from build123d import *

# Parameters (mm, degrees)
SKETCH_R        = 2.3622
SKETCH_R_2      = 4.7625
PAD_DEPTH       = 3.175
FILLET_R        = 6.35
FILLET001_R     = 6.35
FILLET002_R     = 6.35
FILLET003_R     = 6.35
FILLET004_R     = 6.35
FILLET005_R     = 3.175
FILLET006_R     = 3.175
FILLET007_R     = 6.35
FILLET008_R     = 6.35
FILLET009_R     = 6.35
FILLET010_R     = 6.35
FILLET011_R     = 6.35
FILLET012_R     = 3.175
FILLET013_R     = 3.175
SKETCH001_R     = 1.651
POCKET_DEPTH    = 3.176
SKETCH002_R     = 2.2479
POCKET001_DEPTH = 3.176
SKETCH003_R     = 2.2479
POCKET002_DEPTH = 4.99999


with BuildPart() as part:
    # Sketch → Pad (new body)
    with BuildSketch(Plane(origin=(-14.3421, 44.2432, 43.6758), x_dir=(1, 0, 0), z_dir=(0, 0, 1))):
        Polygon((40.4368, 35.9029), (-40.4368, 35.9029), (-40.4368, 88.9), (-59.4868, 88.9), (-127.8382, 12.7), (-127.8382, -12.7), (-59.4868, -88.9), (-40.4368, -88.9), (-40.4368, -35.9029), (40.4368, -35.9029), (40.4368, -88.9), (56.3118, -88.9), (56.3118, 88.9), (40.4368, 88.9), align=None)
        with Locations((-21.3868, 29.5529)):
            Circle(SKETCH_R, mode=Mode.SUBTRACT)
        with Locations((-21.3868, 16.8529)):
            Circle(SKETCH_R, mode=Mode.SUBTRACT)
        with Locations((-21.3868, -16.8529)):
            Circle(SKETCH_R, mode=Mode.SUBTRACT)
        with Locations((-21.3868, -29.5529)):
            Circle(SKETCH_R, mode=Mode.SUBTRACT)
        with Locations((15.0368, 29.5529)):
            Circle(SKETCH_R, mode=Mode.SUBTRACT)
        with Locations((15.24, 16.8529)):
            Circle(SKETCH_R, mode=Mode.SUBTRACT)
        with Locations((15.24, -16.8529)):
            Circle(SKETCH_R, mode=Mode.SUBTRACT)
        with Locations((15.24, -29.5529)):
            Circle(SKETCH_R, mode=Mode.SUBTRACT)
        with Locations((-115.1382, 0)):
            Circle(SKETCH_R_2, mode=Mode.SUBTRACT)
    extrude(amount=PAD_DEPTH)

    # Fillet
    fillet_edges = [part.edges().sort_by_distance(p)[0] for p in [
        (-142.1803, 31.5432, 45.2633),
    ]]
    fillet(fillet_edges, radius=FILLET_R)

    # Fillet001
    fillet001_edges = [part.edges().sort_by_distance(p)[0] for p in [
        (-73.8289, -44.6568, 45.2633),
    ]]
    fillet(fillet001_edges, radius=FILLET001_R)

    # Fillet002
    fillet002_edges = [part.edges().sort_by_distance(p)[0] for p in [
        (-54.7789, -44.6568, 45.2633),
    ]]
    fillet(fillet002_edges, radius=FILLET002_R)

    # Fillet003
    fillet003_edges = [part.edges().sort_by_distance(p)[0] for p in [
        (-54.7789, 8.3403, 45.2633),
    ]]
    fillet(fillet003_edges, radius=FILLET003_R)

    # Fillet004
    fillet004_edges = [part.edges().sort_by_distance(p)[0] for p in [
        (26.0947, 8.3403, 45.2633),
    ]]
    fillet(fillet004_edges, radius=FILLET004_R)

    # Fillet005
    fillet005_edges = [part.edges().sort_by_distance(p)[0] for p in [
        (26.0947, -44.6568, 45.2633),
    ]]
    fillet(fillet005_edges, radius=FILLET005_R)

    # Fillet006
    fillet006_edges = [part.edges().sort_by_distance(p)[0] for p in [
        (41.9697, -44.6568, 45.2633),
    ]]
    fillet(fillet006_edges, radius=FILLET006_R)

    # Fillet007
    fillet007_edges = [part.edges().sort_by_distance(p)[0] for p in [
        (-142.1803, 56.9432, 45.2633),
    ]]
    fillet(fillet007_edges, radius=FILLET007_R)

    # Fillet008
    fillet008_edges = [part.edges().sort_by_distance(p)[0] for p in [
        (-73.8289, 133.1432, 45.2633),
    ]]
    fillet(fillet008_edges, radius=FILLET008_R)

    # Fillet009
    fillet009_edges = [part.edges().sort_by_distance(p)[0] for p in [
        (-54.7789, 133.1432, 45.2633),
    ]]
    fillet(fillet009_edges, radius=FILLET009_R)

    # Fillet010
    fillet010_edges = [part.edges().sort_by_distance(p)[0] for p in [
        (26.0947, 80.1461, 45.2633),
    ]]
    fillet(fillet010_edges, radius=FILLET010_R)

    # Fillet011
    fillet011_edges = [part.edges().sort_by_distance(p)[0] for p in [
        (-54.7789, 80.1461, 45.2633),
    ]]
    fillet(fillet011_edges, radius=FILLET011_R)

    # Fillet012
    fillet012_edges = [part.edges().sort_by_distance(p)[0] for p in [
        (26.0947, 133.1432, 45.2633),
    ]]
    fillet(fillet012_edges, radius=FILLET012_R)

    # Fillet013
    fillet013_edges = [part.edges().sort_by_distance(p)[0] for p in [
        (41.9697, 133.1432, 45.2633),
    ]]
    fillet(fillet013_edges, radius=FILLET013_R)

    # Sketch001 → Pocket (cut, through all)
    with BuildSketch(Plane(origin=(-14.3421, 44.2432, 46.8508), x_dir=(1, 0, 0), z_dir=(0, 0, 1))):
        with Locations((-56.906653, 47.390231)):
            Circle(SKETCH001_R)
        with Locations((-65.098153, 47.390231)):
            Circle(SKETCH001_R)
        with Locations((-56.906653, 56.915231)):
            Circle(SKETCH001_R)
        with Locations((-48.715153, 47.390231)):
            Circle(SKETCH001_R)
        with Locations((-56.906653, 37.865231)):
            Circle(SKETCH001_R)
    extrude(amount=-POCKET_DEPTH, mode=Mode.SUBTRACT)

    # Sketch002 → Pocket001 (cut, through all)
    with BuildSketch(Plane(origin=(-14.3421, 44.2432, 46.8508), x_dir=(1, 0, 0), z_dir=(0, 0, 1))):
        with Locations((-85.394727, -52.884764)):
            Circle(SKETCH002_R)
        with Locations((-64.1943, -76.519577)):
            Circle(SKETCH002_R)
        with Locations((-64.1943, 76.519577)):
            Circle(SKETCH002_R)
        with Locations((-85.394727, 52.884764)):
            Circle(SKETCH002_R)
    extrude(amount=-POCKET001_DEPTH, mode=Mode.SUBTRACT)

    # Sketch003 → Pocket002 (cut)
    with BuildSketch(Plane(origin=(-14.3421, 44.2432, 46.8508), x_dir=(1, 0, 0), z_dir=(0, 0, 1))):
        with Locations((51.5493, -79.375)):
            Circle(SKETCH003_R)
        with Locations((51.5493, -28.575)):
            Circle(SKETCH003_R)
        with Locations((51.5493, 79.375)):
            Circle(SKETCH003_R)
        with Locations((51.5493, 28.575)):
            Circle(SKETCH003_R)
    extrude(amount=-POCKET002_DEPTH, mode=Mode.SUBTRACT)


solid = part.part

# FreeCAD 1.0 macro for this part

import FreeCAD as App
import Part
import Sketcher
Q = App.Units.Quantity


def edges_at(feature, points):
    """Names of the edges that pass closest to the given points."""
    edges = feature.Shape.Edges
    near = lambda p: min(range(len(edges)), key=lambda i: edges[i].distToShape(Part.Vertex(*p))[0])
    return sorted({f"Edge{near(p) + 1}" for p in points})


def add_polygon(sketch, points):
    """Adds a closed chain of lines whose ends are joined by coincident constraints."""
    first, n = sketch.GeometryCount, len(points)
    for a, b in zip(points, points[1:] + points[:1]):
        sketch.addGeometry(Part.LineSegment(App.Vector(*a, 0), App.Vector(*b, 0)), False)
    for i in range(n):
        sketch.addConstraint(Sketcher.Constraint("Coincident", first + i, 2, first + (i + 1) % n, 1))

doc = App.newDocument("Part")
params = doc.addObject("Spreadsheet::Sheet", "Params")
for row, (alias, value) in enumerate([
    ("sketch1_height", "1 in"),
    ("sketch1_height2", "7 in"),
    ("sketch1_diameter", "0.186 in"),
    ("sketch1_diameter2", "0.375 in"),
    ("sketch1_width", "0.75 in"),
    ("pad1_length", "0.125 in"),
    ("fillet_radius", "0.25 in"),
    ("fillet2_radius", "0.25 in"),
    ("fillet3_radius", "0.25 in"),
    ("fillet4_radius", "0.25 in"),
    ("fillet5_radius", "0.25 in"),
    ("fillet6_radius", "0.125 in"),
    ("fillet7_radius", "0.125 in"),
    ("fillet8_radius", "0.25 in"),
    ("fillet9_radius", "0.25 in"),
    ("fillet10_radius", "0.25 in"),
    ("fillet11_radius", "0.25 in"),
    ("fillet12_radius", "0.25 in"),
    ("fillet13_radius", "0.125 in"),
    ("fillet14_radius", "0.125 in"),
    ("sketch2_diameter", "0.13 in"),
    ("sketch3_diameter", "0.177 in"),
    ("sketch4_diameter", "0.177 in"),
    ("pocket3_length", "4.99999 mm"),
], start=1):
    params.set(f"A{row}", alias)
    params.set(f"B{row}", "=" + value)
    params.setAlias(f"B{row}", alias)

body = doc.addObject("PartDesign::Body", "Body")

# Sketch on XY plane
sketch1 = doc.addObject("Sketcher::SketchObject", "Sketch")
body.addObject(sketch1)
sketch1.AttachmentSupport = (doc.XY_Plane, [""])
sketch1.MapMode = "FlatFace"
sketch1.AttachmentOffset = App.Placement(App.Vector(0, 0, 43.6758), App.Rotation())
add_polygon(sketch1, [(26.1, 80.1), (-54.8, 80.1), (-54.8, 133.1), (-73.8, 133.1), (-142.2, 56.9), (-142.2, 31.5), (-73.8, -44.7), (-54.8, -44.7), (-54.8, 8.3), (26.1, 8.3), (26.1, -44.7), (42, -44.7), (42, 133.1), (26.1, 133.1)])  # lines 0-13
sketch1.addGeometry(Part.Circle(App.Vector(-35.7, 14.7, 0), App.Vector(0, 0, 1), 2.4), False)  # 14
sketch1.addGeometry(Part.Circle(App.Vector(-35.7, 27.4, 0), App.Vector(0, 0, 1), 2.4), False)  # 15
sketch1.addGeometry(Part.Circle(App.Vector(0.9, 14.7, 0), App.Vector(0, 0, 1), 2.4), False)  # 16
sketch1.addGeometry(Part.Circle(App.Vector(0.9, 27.4, 0), App.Vector(0, 0, 1), 2.4), False)  # 17
sketch1.addGeometry(Part.Circle(App.Vector(-129.5, 44.2, 0), App.Vector(0, 0, 1), 4.8), False)  # 18
sketch1.addGeometry(Part.Circle(App.Vector(-35.7, 61.1, 0), App.Vector(0, 0, 1), 2.4), False)  # 19
sketch1.addGeometry(Part.Circle(App.Vector(-35.7, 73.8, 0), App.Vector(0, 0, 1), 2.4), False)  # 20
sketch1.addGeometry(Part.Circle(App.Vector(0.9, 61.1, 0), App.Vector(0, 0, 1), 2.4), False)  # 21
sketch1.addGeometry(Part.Circle(App.Vector(0.7, 73.8, 0), App.Vector(0, 0, 1), 2.4), False)  # 22
sketch1.addConstraint(Sketcher.Constraint("Horizontal", 0))
sketch1.addConstraint(Sketcher.Constraint("Vertical", 1))
sketch1.addConstraint(Sketcher.Constraint("Horizontal", 2))
sketch1.addConstraint(Sketcher.Constraint("Vertical", 4))
sketch1.addConstraint(Sketcher.Constraint("Horizontal", 6))
sketch1.addConstraint(Sketcher.Constraint("Vertical", 7))
sketch1.addConstraint(Sketcher.Constraint("Horizontal", 8))
sketch1.addConstraint(Sketcher.Constraint("Vertical", 9))
sketch1.addConstraint(Sketcher.Constraint("Horizontal", 10))
sketch1.addConstraint(Sketcher.Constraint("Vertical", 11))
sketch1.addConstraint(Sketcher.Constraint("Horizontal", 12))
sketch1.addConstraint(Sketcher.Constraint("Vertical", 13))
sketch1.addConstraint(Sketcher.Constraint("Equal", 14, 15))
sketch1.addConstraint(Sketcher.Constraint("Equal", 15, 16))
sketch1.addConstraint(Sketcher.Constraint("Equal", 16, 17))
sketch1.addConstraint(Sketcher.Constraint("Equal", 17, 19))
sketch1.addConstraint(Sketcher.Constraint("Equal", 19, 20))
sketch1.addConstraint(Sketcher.Constraint("Equal", 20, 21))
sketch1.addConstraint(Sketcher.Constraint("Equal", 21, 22))
sketch1.addConstraint(Sketcher.Constraint("Horizontal", 14, 3, 16, 3))
sketch1.addConstraint(Sketcher.Constraint("Horizontal", 15, 3, 17, 3))
sketch1.addConstraint(Sketcher.Constraint("Horizontal", 19, 3, 21, 3))
sketch1.addConstraint(Sketcher.Constraint("Horizontal", 20, 3, 22, 3))
sketch1.addConstraint(Sketcher.Constraint("Horizontal", 6, 2, 9, 2))
sketch1.addConstraint(Sketcher.Constraint("Horizontal", 2, 2, 11, 2))
sketch1.addConstraint(Sketcher.Constraint("Vertical", 14, 3, 15, 3))
sketch1.addConstraint(Sketcher.Constraint("Vertical", 16, 3, 17, 3))
sketch1.addConstraint(Sketcher.Constraint("Vertical", 15, 3, 19, 3))
sketch1.addConstraint(Sketcher.Constraint("Vertical", 19, 3, 20, 3))
sketch1.addConstraint(Sketcher.Constraint("Vertical", 17, 3, 21, 3))
sketch1.addConstraint(Sketcher.Constraint("Vertical", 2, 2, 5, 2))
sketch1.addConstraint(Sketcher.Constraint("Vertical", 1, 2, 6, 2))
sketch1.addConstraint(Sketcher.Constraint("Vertical", 9, 2, 12, 2))
sketch1.addConstraint(Sketcher.Constraint("Equal", 1, 7))
sketch1.addConstraint(Sketcher.Constraint("Equal", 3, 5))
sketch1.addConstraint(Sketcher.Constraint("DistanceY", 4, 2, 4, 1, Q("1 in")))
sketch1.addConstraint(Sketcher.Constraint("DistanceY", 11, 1, 11, 2, Q("7 in")))
sketch1.addConstraint(Sketcher.Constraint("Diameter", 14, Q("0.186 in")))
sketch1.addConstraint(Sketcher.Constraint("Diameter", 18, Q("0.375 in")))
sketch1.addConstraint(Sketcher.Constraint("DistanceX", 22, 3, 12, 2, Q("1 in")))
sketch1.addConstraint(Sketcher.Constraint("DistanceX", 2, 2, 2, 1, Q("0.75 in")))
sketch1.addConstraint(Sketcher.Constraint("DistanceY", 14, 3, 15, 3, Q("0.5 in")))
sketch1.addConstraint(Sketcher.Constraint("DistanceY", 19, 3, 20, 3, Q("0.5 in")))
sketch1.addConstraint(Sketcher.Constraint("DistanceX", 2, 2, 20, 3, Q("1.5 in")))
sketch1.addConstraint(Sketcher.Constraint("DistanceX", 3, 2, 18, 3, Q("0.5 in")))
sketch1.addConstraint(Sketcher.Constraint("DistanceY", 18, 3, 3, 2, Q("0.5 in")))
sketch1.addConstraint(Sketcher.Constraint("DistanceX", 0, 2, 0, 1, Q("3.184 in")))
sketch1.addConstraint(Sketcher.Constraint("DistanceX", 10, 1, 10, 2, Q("0.625 in")))
sketch1.addConstraint(Sketcher.Constraint("DistanceY", 20, 3, 0, 2, Q("0.25 in")))
sketch1.addConstraint(Sketcher.Constraint("DistanceY", 7, 2, 14, 3, Q("0.25 in")))
sketch1.addConstraint(Sketcher.Constraint("DistanceY", 1, 1, 1, 2, Q("2.0865 in")))
sketch1.addConstraint(Sketcher.Constraint("DistanceX", 14, 3, 16, 3, Q("1.442 in")))
sketch1.addConstraint(Sketcher.Constraint("DistanceX", 18, 3, 15, 3, Q("3.691 in")))
sketch1.addConstraint(Sketcher.Constraint("DistanceX", 14, 3, -1, 1, Q("35.7289 mm")))
sketch1.addConstraint(Sketcher.Constraint("DistanceY", -1, 1, 14, 3, Q("14.6903 mm")))
sketch1.setExpression("Constraints[49]", "Params.sketch1_height")
sketch1.setExpression("Constraints[50]", "Params.sketch1_height2")
sketch1.setExpression("Constraints[51]", "Params.sketch1_diameter")
sketch1.setExpression("Constraints[52]", "Params.sketch1_diameter2")
sketch1.setExpression("Constraints[54]", "Params.sketch1_width")
pad1 = doc.addObject("PartDesign::Pad", "Pad")
body.addObject(pad1)
pad1.Profile = sketch1
pad1.setExpression("Length", "Params.pad1_length")
doc.recompute()

fillet = doc.addObject("PartDesign::Fillet", "Fillet")
body.addObject(fillet)
fillet.Base = (pad1, edges_at(pad1, [(-142.18, 31.543, 45.263)]))
fillet.setExpression("Radius", "Params.fillet_radius")
doc.recompute()

fillet2 = doc.addObject("PartDesign::Fillet", "Fillet001")
body.addObject(fillet2)
fillet2.Base = (fillet, edges_at(fillet, [(-73.829, -44.657, 45.263)]))
fillet2.setExpression("Radius", "Params.fillet2_radius")
doc.recompute()

fillet3 = doc.addObject("PartDesign::Fillet", "Fillet002")
body.addObject(fillet3)
fillet3.Base = (fillet2, edges_at(fillet2, [(-54.779, -44.657, 45.263)]))
fillet3.setExpression("Radius", "Params.fillet3_radius")
doc.recompute()

fillet4 = doc.addObject("PartDesign::Fillet", "Fillet003")
body.addObject(fillet4)
fillet4.Base = (fillet3, edges_at(fillet3, [(-54.779, 8.34, 45.263)]))
fillet4.setExpression("Radius", "Params.fillet4_radius")
doc.recompute()

fillet5 = doc.addObject("PartDesign::Fillet", "Fillet004")
body.addObject(fillet5)
fillet5.Base = (fillet4, edges_at(fillet4, [(26.095, 8.34, 45.263)]))
fillet5.setExpression("Radius", "Params.fillet5_radius")
doc.recompute()

fillet6 = doc.addObject("PartDesign::Fillet", "Fillet005")
body.addObject(fillet6)
fillet6.Base = (fillet5, edges_at(fillet5, [(26.095, -44.657, 45.263)]))
fillet6.setExpression("Radius", "Params.fillet6_radius")
doc.recompute()

fillet7 = doc.addObject("PartDesign::Fillet", "Fillet006")
body.addObject(fillet7)
fillet7.Base = (fillet6, edges_at(fillet6, [(41.97, -44.657, 45.263)]))
fillet7.setExpression("Radius", "Params.fillet7_radius")
doc.recompute()

fillet8 = doc.addObject("PartDesign::Fillet", "Fillet007")
body.addObject(fillet8)
fillet8.Base = (fillet7, edges_at(fillet7, [(-142.18, 56.943, 45.263)]))
fillet8.setExpression("Radius", "Params.fillet8_radius")
doc.recompute()

fillet9 = doc.addObject("PartDesign::Fillet", "Fillet008")
body.addObject(fillet9)
fillet9.Base = (fillet8, edges_at(fillet8, [(-73.829, 133.143, 45.263)]))
fillet9.setExpression("Radius", "Params.fillet9_radius")
doc.recompute()

fillet10 = doc.addObject("PartDesign::Fillet", "Fillet009")
body.addObject(fillet10)
fillet10.Base = (fillet9, edges_at(fillet9, [(-54.779, 133.143, 45.263)]))
fillet10.setExpression("Radius", "Params.fillet10_radius")
doc.recompute()

fillet11 = doc.addObject("PartDesign::Fillet", "Fillet010")
body.addObject(fillet11)
fillet11.Base = (fillet10, edges_at(fillet10, [(26.095, 80.146, 45.263)]))
fillet11.setExpression("Radius", "Params.fillet11_radius")
doc.recompute()

fillet12 = doc.addObject("PartDesign::Fillet", "Fillet011")
body.addObject(fillet12)
fillet12.Base = (fillet11, edges_at(fillet11, [(-54.779, 80.146, 45.263)]))
fillet12.setExpression("Radius", "Params.fillet12_radius")
doc.recompute()

fillet13 = doc.addObject("PartDesign::Fillet", "Fillet012")
body.addObject(fillet13)
fillet13.Base = (fillet12, edges_at(fillet12, [(26.095, 133.143, 45.263)]))
fillet13.setExpression("Radius", "Params.fillet13_radius")
doc.recompute()

fillet14 = doc.addObject("PartDesign::Fillet", "Fillet013")
body.addObject(fillet14)
fillet14.Base = (fillet13, edges_at(fillet13, [(41.97, 133.143, 45.263)]))
fillet14.setExpression("Radius", "Params.fillet14_radius")

# Sketch on XY plane
sketch2 = doc.addObject("Sketcher::SketchObject", "Sketch001")
body.addObject(sketch2)
sketch2.AttachmentSupport = (doc.XY_Plane, [""])
sketch2.MapMode = "FlatFace"
sketch2.AttachmentOffset = App.Placement(App.Vector(0, 0, 46.8508), App.Rotation())
sketch2.addGeometry(Part.Circle(App.Vector(-71.2, 91.6, 0), App.Vector(0, 0, 1), 1.7), False)
sketch2.addGeometry(Part.Circle(App.Vector(-79.4, 91.6, 0), App.Vector(0, 0, 1), 1.7), False)
sketch2.addGeometry(Part.Circle(App.Vector(-71.2, 101.2, 0), App.Vector(0, 0, 1), 1.7), False)
sketch2.addGeometry(Part.Circle(App.Vector(-63.1, 91.6, 0), App.Vector(0, 0, 1), 1.7), False)
sketch2.addGeometry(Part.Circle(App.Vector(-71.2, 82.1, 0), App.Vector(0, 0, 1), 1.7), False)
sketch2.addConstraint(Sketcher.Constraint("Equal", 0, 1))
sketch2.addConstraint(Sketcher.Constraint("Equal", 1, 2))
sketch2.addConstraint(Sketcher.Constraint("Equal", 2, 3))
sketch2.addConstraint(Sketcher.Constraint("Equal", 3, 4))
sketch2.addConstraint(Sketcher.Constraint("Horizontal", 0, 3, 1, 3))
sketch2.addConstraint(Sketcher.Constraint("Horizontal", 1, 3, 3, 3))
sketch2.addConstraint(Sketcher.Constraint("Vertical", 0, 3, 2, 3))
sketch2.addConstraint(Sketcher.Constraint("Vertical", 2, 3, 4, 3))
sketch2.addConstraint(Sketcher.Constraint("Diameter", 0, Q("0.13 in")))
sketch2.addConstraint(Sketcher.Constraint("DistanceY", 4, 3, 2, 3, Q("0.75 in")))
sketch2.addConstraint(Sketcher.Constraint("DistanceY", 0, 3, 2, 3, Q("0.375 in")))
sketch2.addConstraint(Sketcher.Constraint("DistanceX", 1, 3, 3, 3, Q("0.645 in")))
sketch2.addConstraint(Sketcher.Constraint("DistanceX", 1, 3, 0, 3, Q("0.3225 in")))
sketch2.addConstraint(Sketcher.Constraint("DistanceY", -1, 1, 0, 3, Q("91.633431 mm")))
sketch2.addConstraint(Sketcher.Constraint("DistanceX", 0, 3, -1, 1, Q("71.248753 mm")))
sketch2.setExpression("Constraints[8]", "Params.sketch2_diameter")
pocket1 = doc.addObject("PartDesign::Pocket", "Pocket")
body.addObject(pocket1)
pocket1.Profile = sketch2
pocket1.Type = "ThroughAll"

# Sketch on XY plane
sketch3 = doc.addObject("Sketcher::SketchObject", "Sketch002")
body.addObject(sketch3)
sketch3.AttachmentSupport = (doc.XY_Plane, [""])
sketch3.MapMode = "FlatFace"
sketch3.AttachmentOffset = App.Placement(App.Vector(0, 0, 46.8508), App.Rotation())
sketch3.addGeometry(Part.Circle(App.Vector(-99.7, -8.6, 0), App.Vector(0, 0, 1), 2.2), False)
sketch3.addGeometry(Part.Circle(App.Vector(-78.5, -32.3, 0), App.Vector(0, 0, 1), 2.2), False)
sketch3.addGeometry(Part.Circle(App.Vector(-78.5, 120.8, 0), App.Vector(0, 0, 1), 2.2), False)
sketch3.addGeometry(Part.Circle(App.Vector(-99.7, 97.1, 0), App.Vector(0, 0, 1), 2.2), False)
sketch3.addConstraint(Sketcher.Constraint("Equal", 0, 1))
sketch3.addConstraint(Sketcher.Constraint("Equal", 1, 2))
sketch3.addConstraint(Sketcher.Constraint("Equal", 2, 3))
sketch3.addConstraint(Sketcher.Constraint("Vertical", 1, 3, 2, 3))
sketch3.addConstraint(Sketcher.Constraint("Vertical", 0, 3, 3, 3))
sketch3.addConstraint(Sketcher.Constraint("Diameter", 0, Q("0.177 in")))
sketch3.addConstraint(Sketcher.Constraint("DistanceX", 1, 3, -1, 1, Q("78.5364 mm")))
sketch3.addConstraint(Sketcher.Constraint("DistanceY", 0, 3, 2, 3, Q("129.404341 mm")))
sketch3.addConstraint(Sketcher.Constraint("DistanceY", 0, 3, 3, 3, Q("105.769528 mm")))
sketch3.addConstraint(Sketcher.Constraint("DistanceY", 1, 3, 3, 3, Q("129.404341 mm")))
sketch3.addConstraint(Sketcher.Constraint("DistanceX", 0, 3, -1, 1, Q("99.736827 mm")))
sketch3.addConstraint(Sketcher.Constraint("DistanceY", 0, 3, -1, 1, Q("8.641564 mm")))
sketch3.setExpression("Constraints[5]", "Params.sketch3_diameter")
pocket2 = doc.addObject("PartDesign::Pocket", "Pocket001")
body.addObject(pocket2)
pocket2.Profile = sketch3
pocket2.Type = "ThroughAll"

# Sketch on XY plane
sketch4 = doc.addObject("Sketcher::SketchObject", "Sketch003")
body.addObject(sketch4)
sketch4.AttachmentSupport = (doc.XY_Plane, [""])
sketch4.MapMode = "FlatFace"
sketch4.AttachmentOffset = App.Placement(App.Vector(0, 0, 46.8508), App.Rotation())
sketch4.addGeometry(Part.Circle(App.Vector(37.2, -35.1, 0), App.Vector(0, 0, 1), 2.2), False)
sketch4.addGeometry(Part.Circle(App.Vector(37.2, 15.7, 0), App.Vector(0, 0, 1), 2.2), False)
sketch4.addGeometry(Part.Circle(App.Vector(37.2, 123.6, 0), App.Vector(0, 0, 1), 2.2), False)
sketch4.addGeometry(Part.Circle(App.Vector(37.2, 72.8, 0), App.Vector(0, 0, 1), 2.2), False)
sketch4.addConstraint(Sketcher.Constraint("Equal", 0, 1))
sketch4.addConstraint(Sketcher.Constraint("Equal", 1, 2))
sketch4.addConstraint(Sketcher.Constraint("Equal", 2, 3))
sketch4.addConstraint(Sketcher.Constraint("Vertical", 0, 3, 1, 3))
sketch4.addConstraint(Sketcher.Constraint("Vertical", 1, 3, 2, 3))
sketch4.addConstraint(Sketcher.Constraint("Vertical", 2, 3, 3, 3))
sketch4.addConstraint(Sketcher.Constraint("Diameter", 0, Q("0.177 in")))
sketch4.addConstraint(Sketcher.Constraint("DistanceY", 0, 3, 1, 3, Q("2 in")))
sketch4.addConstraint(Sketcher.Constraint("DistanceY", 3, 3, 2, 3, Q("2 in")))
sketch4.addConstraint(Sketcher.Constraint("DistanceY", 1, 3, 2, 3, Q("4.25 in")))
sketch4.addConstraint(Sketcher.Constraint("DistanceX", -1, 1, 0, 3, Q("37.2072 mm")))
sketch4.addConstraint(Sketcher.Constraint("DistanceY", 0, 3, -1, 1, Q("35.1318 mm")))
sketch4.setExpression("Constraints[6]", "Params.sketch4_diameter")
pocket3 = doc.addObject("PartDesign::Pocket", "Pocket002")
body.addObject(pocket3)
pocket3.Profile = sketch4
pocket3.setExpression("Length", "Params.pocket3_length")

doc.recompute()
